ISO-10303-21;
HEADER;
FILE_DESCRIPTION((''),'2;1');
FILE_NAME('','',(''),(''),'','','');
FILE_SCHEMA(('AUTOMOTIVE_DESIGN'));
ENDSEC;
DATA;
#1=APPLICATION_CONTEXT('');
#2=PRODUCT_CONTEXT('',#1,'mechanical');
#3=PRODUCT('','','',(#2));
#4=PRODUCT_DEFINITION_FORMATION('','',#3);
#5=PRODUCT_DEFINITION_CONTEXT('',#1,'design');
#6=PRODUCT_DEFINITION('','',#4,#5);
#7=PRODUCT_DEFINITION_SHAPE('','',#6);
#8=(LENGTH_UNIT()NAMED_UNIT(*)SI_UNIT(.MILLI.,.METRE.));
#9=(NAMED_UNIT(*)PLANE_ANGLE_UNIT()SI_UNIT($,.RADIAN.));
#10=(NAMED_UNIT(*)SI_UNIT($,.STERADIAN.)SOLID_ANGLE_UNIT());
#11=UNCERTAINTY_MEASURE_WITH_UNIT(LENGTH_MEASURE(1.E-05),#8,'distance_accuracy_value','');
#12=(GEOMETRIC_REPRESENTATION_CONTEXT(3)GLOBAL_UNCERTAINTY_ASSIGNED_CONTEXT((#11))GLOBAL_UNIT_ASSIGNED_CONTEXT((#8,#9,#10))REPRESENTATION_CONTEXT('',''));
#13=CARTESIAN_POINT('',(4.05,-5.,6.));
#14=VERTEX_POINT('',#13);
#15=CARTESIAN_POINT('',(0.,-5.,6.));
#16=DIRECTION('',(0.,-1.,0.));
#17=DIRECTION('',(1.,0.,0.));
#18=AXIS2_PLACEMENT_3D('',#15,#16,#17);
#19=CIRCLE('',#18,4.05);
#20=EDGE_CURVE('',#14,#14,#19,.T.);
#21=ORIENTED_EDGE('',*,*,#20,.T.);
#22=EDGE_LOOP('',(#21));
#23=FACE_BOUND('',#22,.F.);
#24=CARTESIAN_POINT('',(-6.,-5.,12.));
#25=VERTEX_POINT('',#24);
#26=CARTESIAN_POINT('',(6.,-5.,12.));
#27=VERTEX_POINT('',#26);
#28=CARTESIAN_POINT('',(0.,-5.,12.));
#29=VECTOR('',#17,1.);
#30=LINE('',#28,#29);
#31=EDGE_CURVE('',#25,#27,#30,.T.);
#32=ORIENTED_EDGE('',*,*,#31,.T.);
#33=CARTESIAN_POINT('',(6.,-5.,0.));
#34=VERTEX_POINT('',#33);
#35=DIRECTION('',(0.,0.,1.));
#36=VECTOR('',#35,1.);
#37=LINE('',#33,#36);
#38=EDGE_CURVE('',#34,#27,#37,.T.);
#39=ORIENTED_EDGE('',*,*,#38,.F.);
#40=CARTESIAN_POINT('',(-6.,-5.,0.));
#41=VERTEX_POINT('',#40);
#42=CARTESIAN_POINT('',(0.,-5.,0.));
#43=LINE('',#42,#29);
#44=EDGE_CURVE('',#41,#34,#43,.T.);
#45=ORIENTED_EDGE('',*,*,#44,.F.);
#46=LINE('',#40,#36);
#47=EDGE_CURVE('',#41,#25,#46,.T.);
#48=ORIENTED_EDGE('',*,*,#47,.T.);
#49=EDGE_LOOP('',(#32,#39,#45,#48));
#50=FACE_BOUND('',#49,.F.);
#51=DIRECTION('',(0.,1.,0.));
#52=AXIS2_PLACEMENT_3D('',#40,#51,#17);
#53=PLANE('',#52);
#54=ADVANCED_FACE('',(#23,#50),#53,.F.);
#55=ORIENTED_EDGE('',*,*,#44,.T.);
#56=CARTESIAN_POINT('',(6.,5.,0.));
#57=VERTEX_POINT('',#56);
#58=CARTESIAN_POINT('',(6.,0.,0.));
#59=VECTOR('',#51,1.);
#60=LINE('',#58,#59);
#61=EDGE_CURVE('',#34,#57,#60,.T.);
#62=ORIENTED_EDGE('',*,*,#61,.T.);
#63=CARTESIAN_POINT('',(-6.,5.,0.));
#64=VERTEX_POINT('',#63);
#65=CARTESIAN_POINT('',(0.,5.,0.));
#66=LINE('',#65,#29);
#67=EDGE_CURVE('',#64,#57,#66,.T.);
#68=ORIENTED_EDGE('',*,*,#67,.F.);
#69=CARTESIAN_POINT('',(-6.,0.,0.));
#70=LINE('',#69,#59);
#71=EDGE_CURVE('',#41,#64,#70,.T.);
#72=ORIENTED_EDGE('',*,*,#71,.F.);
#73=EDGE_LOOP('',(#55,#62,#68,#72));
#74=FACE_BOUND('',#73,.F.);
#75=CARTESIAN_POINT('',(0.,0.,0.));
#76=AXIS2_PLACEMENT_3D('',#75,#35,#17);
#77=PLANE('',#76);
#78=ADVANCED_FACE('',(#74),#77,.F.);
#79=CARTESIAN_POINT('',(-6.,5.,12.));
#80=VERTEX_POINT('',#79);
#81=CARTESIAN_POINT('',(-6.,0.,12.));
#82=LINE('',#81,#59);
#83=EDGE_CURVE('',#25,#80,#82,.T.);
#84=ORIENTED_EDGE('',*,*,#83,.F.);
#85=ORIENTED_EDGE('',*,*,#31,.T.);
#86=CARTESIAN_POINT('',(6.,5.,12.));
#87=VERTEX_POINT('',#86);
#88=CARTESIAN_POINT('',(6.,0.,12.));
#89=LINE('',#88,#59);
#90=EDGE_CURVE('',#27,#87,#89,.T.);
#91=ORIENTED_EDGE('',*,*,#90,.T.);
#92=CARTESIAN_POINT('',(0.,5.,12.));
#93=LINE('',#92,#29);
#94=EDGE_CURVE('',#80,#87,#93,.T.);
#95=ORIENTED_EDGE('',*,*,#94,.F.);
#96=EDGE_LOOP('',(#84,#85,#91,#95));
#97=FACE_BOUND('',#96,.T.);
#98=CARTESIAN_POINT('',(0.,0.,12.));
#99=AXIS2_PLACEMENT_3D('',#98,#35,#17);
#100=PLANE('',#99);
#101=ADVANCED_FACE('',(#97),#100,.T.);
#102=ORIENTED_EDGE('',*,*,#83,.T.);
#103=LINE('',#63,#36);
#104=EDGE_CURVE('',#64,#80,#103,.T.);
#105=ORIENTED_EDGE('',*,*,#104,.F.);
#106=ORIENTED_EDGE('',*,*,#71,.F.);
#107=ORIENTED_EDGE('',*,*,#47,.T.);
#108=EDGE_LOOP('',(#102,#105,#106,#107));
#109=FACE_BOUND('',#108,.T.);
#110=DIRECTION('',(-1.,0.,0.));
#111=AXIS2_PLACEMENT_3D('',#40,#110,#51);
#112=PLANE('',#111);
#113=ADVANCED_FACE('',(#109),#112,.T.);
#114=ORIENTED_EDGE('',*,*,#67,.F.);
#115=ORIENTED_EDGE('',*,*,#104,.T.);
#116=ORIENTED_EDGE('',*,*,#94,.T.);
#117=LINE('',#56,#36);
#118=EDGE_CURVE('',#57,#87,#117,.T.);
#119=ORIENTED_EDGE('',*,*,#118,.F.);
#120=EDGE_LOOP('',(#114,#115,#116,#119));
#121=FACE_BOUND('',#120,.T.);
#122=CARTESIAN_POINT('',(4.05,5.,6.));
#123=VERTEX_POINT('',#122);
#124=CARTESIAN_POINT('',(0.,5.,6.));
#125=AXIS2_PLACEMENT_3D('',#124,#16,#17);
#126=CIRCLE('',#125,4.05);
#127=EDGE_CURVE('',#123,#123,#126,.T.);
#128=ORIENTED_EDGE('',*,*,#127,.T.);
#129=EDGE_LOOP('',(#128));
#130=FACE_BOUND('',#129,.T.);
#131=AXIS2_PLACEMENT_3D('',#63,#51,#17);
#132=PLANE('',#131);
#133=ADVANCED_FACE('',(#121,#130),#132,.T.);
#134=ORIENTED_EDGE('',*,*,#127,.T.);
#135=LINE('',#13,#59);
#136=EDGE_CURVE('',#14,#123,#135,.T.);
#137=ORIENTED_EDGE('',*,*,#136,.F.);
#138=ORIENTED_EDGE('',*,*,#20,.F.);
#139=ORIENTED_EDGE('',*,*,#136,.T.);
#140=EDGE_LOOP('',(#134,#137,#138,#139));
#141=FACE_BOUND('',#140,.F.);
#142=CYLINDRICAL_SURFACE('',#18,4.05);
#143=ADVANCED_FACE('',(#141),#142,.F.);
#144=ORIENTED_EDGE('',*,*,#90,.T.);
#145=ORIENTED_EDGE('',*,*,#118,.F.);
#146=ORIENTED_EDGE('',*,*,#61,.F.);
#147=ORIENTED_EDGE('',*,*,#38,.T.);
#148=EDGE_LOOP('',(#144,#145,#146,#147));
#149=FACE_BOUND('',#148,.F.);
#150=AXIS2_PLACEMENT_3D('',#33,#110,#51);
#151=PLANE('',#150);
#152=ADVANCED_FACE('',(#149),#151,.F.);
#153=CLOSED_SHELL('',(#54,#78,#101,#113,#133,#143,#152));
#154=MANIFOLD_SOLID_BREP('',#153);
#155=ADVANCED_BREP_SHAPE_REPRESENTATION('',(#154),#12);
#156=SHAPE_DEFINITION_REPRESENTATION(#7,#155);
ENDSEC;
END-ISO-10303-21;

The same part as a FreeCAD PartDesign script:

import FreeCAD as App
import Part
import Sketcher
from FreeCAD import Vector
Q = App.Units.Quantity


def add_polygon(sketch, points):
    """Adds a closed chain of lines whose ends are joined by coincident constraints."""
    first, n = sketch.GeometryCount, len(points)
    for a, b in zip(points, points[1:] + points[:1]):
        sketch.addGeometry(Part.LineSegment(App.Vector(*a, 0), App.Vector(*b, 0)), False)
    for i in range(n):
        sketch.addConstraint(Sketcher.Constraint("Coincident", first + i, 2, first + (i + 1) % n, 1))

doc = App.newDocument("Part")
body = doc.addObject("PartDesign::Body", "Body")

# Sketch on XY plane
sketch1 = body.newObject("Sketcher::SketchObject", "Sketch")
sketch1.AttachmentSupport = (doc.getObject("XY_Plane"), [""])
sketch1.MapMode = "FlatFace"
add_polygon(sketch1, [(-6, 5), (-6, -5), (6, -5), (6, 5)])  # lines 0-3
sketch1.addConstraint([
    Sketcher.Constraint("Vertical", 0),
    Sketcher.Constraint("Horizontal", 1),
    Sketcher.Constraint("Vertical", 2),
    Sketcher.Constraint("Horizontal", 3),
    Sketcher.Constraint("Symmetric", 0, 2, 2, 2, -1, 1),
    Sketcher.Constraint("DistanceX", 1, 1, 1, 2, Q("12 mm")),
    Sketcher.Constraint("DistanceY", 0, 2, 0, 1, Q("10 mm")),
])
pad1 = body.newObject("PartDesign::Pad", "Pad")
pad1.Profile = sketch1
pad1.Length = 12

# Sketch on XZ plane
sketch2 = body.newObject("Sketcher::SketchObject", "Sketch001")
sketch2.AttachmentSupport = (doc.getObject("XZ_Plane"), [""])
sketch2.MapMode = "FlatFace"
sketch2.AttachmentOffset = App.Placement(Vector(0, 0, 5), App.Rotation())
sketch2.addGeometry(Part.Circle(Vector(0, 6, 0), Vector(0, 0, 1), 4), False)
sketch2.addConstraint([
    Sketcher.Constraint("PointOnObject", 0, 3, -2),
    Sketcher.Constraint("Diameter", 0, Q("8.1 mm")),
    Sketcher.Constraint("DistanceY", -1, 1, 0, 3, Q("6 mm")),
])
pocket1 = body.newObject("PartDesign::Pocket", "Pocket")
pocket1.Profile = sketch2
pocket1.Length = 25

doc.recompute()
